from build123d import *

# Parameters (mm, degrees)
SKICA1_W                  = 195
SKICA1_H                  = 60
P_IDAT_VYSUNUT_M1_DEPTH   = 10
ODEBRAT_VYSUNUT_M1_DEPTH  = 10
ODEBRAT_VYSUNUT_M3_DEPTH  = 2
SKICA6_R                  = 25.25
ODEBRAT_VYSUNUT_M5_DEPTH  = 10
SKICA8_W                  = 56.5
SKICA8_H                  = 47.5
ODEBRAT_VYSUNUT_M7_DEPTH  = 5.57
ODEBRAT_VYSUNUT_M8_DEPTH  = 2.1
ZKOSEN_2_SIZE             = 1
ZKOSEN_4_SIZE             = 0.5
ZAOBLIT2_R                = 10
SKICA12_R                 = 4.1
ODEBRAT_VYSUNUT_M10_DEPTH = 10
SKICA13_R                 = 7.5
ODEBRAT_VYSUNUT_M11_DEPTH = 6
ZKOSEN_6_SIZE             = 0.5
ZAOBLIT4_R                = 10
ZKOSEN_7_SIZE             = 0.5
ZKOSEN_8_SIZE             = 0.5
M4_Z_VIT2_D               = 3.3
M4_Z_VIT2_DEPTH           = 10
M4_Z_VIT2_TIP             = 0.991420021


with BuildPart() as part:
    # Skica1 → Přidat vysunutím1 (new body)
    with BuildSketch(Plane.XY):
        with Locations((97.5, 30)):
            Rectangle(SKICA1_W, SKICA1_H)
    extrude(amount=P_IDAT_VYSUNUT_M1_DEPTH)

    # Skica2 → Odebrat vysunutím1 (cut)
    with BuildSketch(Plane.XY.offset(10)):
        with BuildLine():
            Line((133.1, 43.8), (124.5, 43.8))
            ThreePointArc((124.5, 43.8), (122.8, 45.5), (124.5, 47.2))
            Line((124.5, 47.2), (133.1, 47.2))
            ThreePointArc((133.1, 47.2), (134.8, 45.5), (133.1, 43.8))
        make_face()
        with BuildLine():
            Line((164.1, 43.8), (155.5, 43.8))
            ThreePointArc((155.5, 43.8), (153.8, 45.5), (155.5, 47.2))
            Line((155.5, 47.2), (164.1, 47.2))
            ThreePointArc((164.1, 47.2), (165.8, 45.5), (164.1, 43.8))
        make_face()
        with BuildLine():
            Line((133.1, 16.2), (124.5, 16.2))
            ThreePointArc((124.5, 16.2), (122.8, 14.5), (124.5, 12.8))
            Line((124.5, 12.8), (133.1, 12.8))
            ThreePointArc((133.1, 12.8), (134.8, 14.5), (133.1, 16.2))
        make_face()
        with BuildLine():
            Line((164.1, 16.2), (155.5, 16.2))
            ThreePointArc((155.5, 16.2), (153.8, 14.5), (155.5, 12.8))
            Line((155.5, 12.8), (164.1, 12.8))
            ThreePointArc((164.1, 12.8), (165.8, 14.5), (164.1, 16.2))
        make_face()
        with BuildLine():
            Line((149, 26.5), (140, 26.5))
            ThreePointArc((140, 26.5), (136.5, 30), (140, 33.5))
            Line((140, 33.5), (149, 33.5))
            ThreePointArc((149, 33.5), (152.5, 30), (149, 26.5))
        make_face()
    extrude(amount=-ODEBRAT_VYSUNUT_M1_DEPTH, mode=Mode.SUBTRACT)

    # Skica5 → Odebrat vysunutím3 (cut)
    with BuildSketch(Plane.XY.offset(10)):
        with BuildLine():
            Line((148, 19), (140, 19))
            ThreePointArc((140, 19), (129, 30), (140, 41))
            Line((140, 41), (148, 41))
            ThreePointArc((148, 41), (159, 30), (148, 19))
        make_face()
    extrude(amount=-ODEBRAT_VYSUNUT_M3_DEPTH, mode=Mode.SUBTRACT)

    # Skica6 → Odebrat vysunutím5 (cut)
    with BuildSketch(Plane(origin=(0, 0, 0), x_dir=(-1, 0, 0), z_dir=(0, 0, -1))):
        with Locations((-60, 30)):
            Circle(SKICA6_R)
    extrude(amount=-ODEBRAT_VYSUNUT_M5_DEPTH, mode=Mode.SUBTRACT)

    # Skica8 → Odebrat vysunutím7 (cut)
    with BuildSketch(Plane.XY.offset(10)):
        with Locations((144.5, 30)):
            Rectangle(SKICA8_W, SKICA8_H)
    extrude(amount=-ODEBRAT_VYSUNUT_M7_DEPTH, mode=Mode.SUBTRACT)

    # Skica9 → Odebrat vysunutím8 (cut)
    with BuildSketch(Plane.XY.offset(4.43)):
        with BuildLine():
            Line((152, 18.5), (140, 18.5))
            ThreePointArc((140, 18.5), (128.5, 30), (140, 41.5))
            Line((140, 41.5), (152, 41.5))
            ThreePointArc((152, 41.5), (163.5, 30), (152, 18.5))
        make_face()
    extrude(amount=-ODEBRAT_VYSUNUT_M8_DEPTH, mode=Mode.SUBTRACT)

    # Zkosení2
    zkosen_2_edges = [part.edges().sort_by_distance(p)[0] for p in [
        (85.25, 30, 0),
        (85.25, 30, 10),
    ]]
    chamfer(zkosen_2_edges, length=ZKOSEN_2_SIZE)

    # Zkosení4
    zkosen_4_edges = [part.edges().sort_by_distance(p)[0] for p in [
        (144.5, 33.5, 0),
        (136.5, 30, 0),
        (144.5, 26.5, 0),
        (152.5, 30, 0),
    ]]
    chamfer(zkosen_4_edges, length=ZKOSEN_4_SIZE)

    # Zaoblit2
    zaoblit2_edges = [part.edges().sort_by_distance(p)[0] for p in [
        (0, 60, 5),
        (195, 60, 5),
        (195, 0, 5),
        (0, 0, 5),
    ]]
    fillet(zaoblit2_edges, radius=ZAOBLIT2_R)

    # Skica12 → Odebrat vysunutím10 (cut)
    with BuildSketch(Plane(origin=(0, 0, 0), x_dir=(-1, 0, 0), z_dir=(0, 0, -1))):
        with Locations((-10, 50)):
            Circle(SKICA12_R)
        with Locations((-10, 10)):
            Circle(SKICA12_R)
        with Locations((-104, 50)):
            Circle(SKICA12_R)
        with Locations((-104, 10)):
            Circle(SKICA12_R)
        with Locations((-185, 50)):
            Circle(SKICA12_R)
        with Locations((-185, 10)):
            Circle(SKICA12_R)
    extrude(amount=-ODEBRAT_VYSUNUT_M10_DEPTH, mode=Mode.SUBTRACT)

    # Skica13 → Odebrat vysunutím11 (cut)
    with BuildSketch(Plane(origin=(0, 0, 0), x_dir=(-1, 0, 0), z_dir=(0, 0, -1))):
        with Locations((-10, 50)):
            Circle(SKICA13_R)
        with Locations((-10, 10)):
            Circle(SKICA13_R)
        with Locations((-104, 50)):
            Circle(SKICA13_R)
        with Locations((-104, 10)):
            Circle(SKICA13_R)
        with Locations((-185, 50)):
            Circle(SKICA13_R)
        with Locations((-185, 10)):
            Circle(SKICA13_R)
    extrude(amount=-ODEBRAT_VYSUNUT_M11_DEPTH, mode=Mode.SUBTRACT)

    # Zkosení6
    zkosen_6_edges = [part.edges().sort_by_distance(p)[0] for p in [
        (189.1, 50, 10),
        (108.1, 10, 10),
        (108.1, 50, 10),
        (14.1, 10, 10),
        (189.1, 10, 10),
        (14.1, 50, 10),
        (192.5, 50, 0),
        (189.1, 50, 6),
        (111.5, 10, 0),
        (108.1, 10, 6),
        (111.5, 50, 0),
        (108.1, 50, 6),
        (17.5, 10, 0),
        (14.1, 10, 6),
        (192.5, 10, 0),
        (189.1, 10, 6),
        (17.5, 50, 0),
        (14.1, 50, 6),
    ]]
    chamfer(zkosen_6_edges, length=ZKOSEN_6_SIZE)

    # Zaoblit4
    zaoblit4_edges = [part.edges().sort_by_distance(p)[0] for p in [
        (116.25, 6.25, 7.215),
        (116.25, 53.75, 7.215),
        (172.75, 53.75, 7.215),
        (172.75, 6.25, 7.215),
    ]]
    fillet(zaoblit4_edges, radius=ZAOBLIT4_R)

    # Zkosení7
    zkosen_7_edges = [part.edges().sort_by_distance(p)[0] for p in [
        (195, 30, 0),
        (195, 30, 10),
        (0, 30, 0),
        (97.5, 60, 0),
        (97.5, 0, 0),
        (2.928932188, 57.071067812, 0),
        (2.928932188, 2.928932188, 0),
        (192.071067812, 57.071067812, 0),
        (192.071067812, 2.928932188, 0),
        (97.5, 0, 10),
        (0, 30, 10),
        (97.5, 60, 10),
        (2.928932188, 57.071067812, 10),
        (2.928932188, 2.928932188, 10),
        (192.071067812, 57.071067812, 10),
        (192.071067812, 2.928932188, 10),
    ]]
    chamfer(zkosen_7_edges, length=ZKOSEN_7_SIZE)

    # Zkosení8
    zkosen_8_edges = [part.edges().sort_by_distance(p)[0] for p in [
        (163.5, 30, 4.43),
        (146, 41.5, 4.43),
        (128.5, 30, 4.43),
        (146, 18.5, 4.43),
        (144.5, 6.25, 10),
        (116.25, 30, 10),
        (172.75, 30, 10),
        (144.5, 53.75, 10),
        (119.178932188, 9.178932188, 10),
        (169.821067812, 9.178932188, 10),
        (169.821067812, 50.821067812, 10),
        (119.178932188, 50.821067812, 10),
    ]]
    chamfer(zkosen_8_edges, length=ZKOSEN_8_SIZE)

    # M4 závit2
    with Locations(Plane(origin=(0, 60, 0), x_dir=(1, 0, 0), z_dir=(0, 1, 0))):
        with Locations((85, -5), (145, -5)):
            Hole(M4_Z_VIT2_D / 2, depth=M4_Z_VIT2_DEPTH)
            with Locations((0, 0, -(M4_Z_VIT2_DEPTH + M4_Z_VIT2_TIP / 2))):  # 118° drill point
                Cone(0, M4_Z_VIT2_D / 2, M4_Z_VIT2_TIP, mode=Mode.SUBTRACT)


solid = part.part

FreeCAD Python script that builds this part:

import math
import FreeCAD as App
import Part
import Sketcher

V = App.Vector


def edges_at(feature, points):
    """Names of the edges that pass closest to the given points."""
    edges = feature.Shape.Edges
    near = lambda p: min(range(len(edges)), key=lambda i: edges[i].distToShape(Part.Vertex(*p))[0])
    return sorted({f"Edge{near(p) + 1}" for p in points})


def add_polygon(sketch, points):
    """Adds a closed chain of lines whose ends are joined by coincident constraints."""
    first, n = sketch.GeometryCount, len(points)
    for a, b in zip(points, points[1:] + points[:1]):
        sketch.addGeometry(Part.LineSegment(App.Vector(*a, 0), App.Vector(*b, 0)), False)
    for i in range(n):
        sketch.addConstraint(Sketcher.Constraint("Coincident", first + i, 2, first + (i + 1) % n, 1))

doc = App.newDocument("Part")
body = doc.addObject("PartDesign::Body", "Body")

sketch1 = body.newObject("Sketcher::SketchObject", "Sketch")
sketch1.AttachmentSupport = (doc.getObject("XY_Plane"), [""])
sketch1.MapMode = "FlatFace"
add_polygon(sketch1, [(0, 60), (0, 0), (195, 0), (195, 60)])
sketch1.addConstraint([
    Sketcher.Constraint("Vertical", 0),
    Sketcher.Constraint("Horizontal", 1),
    Sketcher.Constraint("Vertical", 2),
    Sketcher.Constraint("Horizontal", 3),
    Sketcher.Constraint("Coincident", 0, 2, -1, 1),
    Sketcher.Constraint("DistanceX", 1, 1, 1, 2, 195.0),
    Sketcher.Constraint("DistanceY", 0, 2, 0, 1, 60.0),
])
pad1 = body.newObject("PartDesign::Pad", "Pad")
pad1.Profile = sketch1
pad1.Length = 10

sketch2 = body.newObject("Sketcher::SketchObject", "Sketch001")
sketch2.AttachmentSupport = (doc.getObject("XY_Plane"), [""])
sketch2.MapMode = "FlatFace"
sketch2.AttachmentOffset = App.Placement(V(0, 0, 10), App.Rotation())
sketch2.addGeometry([
    Part.LineSegment(V(124.5, 43.8, 0), V(133.1, 43.8, 0)),
    Part.ArcOfCircle(Part.Circle(V(133.1, 45.5, 0), V(0, 0, 1), 1.7), math.radians(-90), math.radians(90)),
    Part.LineSegment(V(133.1, 47.2, 0), V(124.5, 47.2, 0)),
    Part.ArcOfCircle(Part.Circle(V(124.5, 45.5, 0), V(0, 0, 1), 1.7), math.radians(90), math.radians(270)),
    Part.LineSegment(V(155.5, 43.8, 0), V(164.1, 43.8, 0)),
    Part.ArcOfCircle(Part.Circle(V(164.1, 45.5, 0), V(0, 0, 1), 1.7), math.radians(-90), math.radians(90)),
    Part.LineSegment(V(164.1, 47.2, 0), V(155.5, 47.2, 0)),
    Part.ArcOfCircle(Part.Circle(V(155.5, 45.5, 0), V(0, 0, 1), 1.7), math.radians(90), math.radians(270)),
    Part.LineSegment(V(133.1, 16.2, 0), V(124.5, 16.2, 0)),
    Part.ArcOfCircle(Part.Circle(V(124.5, 14.5, 0), V(0, 0, 1), 1.7), math.radians(90), math.radians(270)),
    Part.LineSegment(V(124.5, 12.8, 0), V(133.1, 12.8, 0)),
    Part.ArcOfCircle(Part.Circle(V(133.1, 14.5, 0), V(0, 0, 1), 1.7), math.radians(-90), math.radians(90)),
    Part.LineSegment(V(164.1, 16.2, 0), V(155.5, 16.2, 0)),
    Part.ArcOfCircle(Part.Circle(V(155.5, 14.5, 0), V(0, 0, 1), 1.7), math.radians(90), math.radians(270)),
    Part.LineSegment(V(155.5, 12.8, 0), V(164.1, 12.8, 0)),
    Part.ArcOfCircle(Part.Circle(V(164.1, 14.5, 0), V(0, 0, 1), 1.7), math.radians(-90), math.radians(90)),
    Part.LineSegment(V(140, 26.5, 0), V(149, 26.5, 0)),
    Part.ArcOfCircle(Part.Circle(V(149, 30, 0), V(0, 0, 1), 3.5), math.radians(-90), math.radians(90)),
    Part.LineSegment(V(149, 33.5, 0), V(140, 33.5, 0)),
    Part.ArcOfCircle(Part.Circle(V(140, 30, 0), V(0, 0, 1), 3.5), math.radians(90), math.radians(270)),
], False)
sketch2.addConstraint([
    Sketcher.Constraint("Tangent", 0, 2, 1, 1),
    Sketcher.Constraint("Tangent", 1, 2, 2, 1),
    Sketcher.Constraint("Tangent", 2, 2, 3, 1),
    Sketcher.Constraint("Tangent", 3, 2, 0, 1),
    Sketcher.Constraint("Tangent", 4, 2, 5, 1),
    Sketcher.Constraint("Tangent", 5, 2, 6, 1),
    Sketcher.Constraint("Tangent", 6, 2, 7, 1),
    Sketcher.Constraint("Tangent", 7, 2, 4, 1),
    Sketcher.Constraint("Tangent", 8, 2, 9, 1),
    Sketcher.Constraint("Tangent", 9, 2, 10, 1),
    Sketcher.Constraint("Tangent", 10, 2, 11, 1),
    Sketcher.Constraint("Tangent", 11, 2, 8, 1),
    Sketcher.Constraint("Tangent", 12, 2, 13, 1),
    Sketcher.Constraint("Tangent", 13, 2, 14, 1),
    Sketcher.Constraint("Tangent", 14, 2, 15, 1),
    Sketcher.Constraint("Tangent", 15, 2, 12, 1),
    Sketcher.Constraint("Tangent", 16, 2, 17, 1),
    Sketcher.Constraint("Tangent", 17, 2, 18, 1),
    Sketcher.Constraint("Tangent", 18, 2, 19, 1),
    Sketcher.Constraint("Tangent", 19, 2, 16, 1),
    Sketcher.Constraint("Horizontal", 0),
    Sketcher.Constraint("Horizontal", 2),
    Sketcher.Constraint("Horizontal", 4),
    Sketcher.Constraint("Horizontal", 6),
    Sketcher.Constraint("Horizontal", 8),
    Sketcher.Constraint("Horizontal", 10),
    Sketcher.Constraint("Horizontal", 12),
    Sketcher.Constraint("Horizontal", 14),
    Sketcher.Constraint("Horizontal", 16),
    Sketcher.Constraint("Horizontal", 18),
    Sketcher.Constraint("Equal", 3, 5),
    Sketcher.Constraint("Equal", 7, 9),
    Sketcher.Constraint("Equal", 11, 13),
    Sketcher.Constraint("Horizontal", 3, 3, 5, 3),
    Sketcher.Constraint("Horizontal", 11, 3, 13, 3),
    Sketcher.Constraint("Vertical", 3, 3, 9, 3),
    Sketcher.Constraint("Vertical", 1, 3, 11, 3),
    Sketcher.Constraint("Vertical", 7, 3, 13, 3),
    Sketcher.Constraint("Vertical", 5, 3, 15, 3),
    Sketcher.Constraint("Equal", 2, 4),
    Sketcher.Constraint("Radius", 1, 1.7),
    Sketcher.Constraint("Radius", 17, 3.5),
    Sketcher.Constraint("DistanceX", 16, 1, 16, 2, 9.0),
    Sketcher.Constraint("DistanceX", 0, 1, 0, 2, 8.6),
    Sketcher.Constraint("DistanceX", -1, 1, 17, 3, 149.0),
    Sketcher.Constraint("DistanceY", -1, 1, 17, 3, 30.0),
    Sketcher.Constraint("DistanceX", 1, 3, 5, 3, 31.0),
    Sketcher.Constraint("DistanceY", 9, 3, 3, 3, 31.0),
    Sketcher.Constraint("DistanceY", 13, 3, 16, 2, 12.0),
    Sketcher.Constraint("DistanceX", -1, 1, 1, 3, 133.1),
])
pocket1 = body.newObject("PartDesign::Pocket", "Pocket")
pocket1.Profile = sketch2
pocket1.Length = 10

sketch3 = body.newObject("Sketcher::SketchObject", "Sketch002")
sketch3.AttachmentSupport = (doc.getObject("XY_Plane"), [""])
sketch3.MapMode = "FlatFace"
sketch3.AttachmentOffset = App.Placement(V(0, 0, 10), App.Rotation())
sketch3.addGeometry([
    Part.LineSegment(V(140, 19, 0), V(148, 19, 0)),
    Part.ArcOfCircle(Part.Circle(V(148, 30, 0), V(0, 0, 1), 11), math.radians(-90), math.radians(90)),
    Part.LineSegment(V(148, 41, 0), V(140, 41, 0)),
    Part.ArcOfCircle(Part.Circle(V(140, 30, 0), V(0, 0, 1), 11), math.radians(90), math.radians(270)),
], False)
sketch3.addConstraint([
    Sketcher.Constraint("Tangent", 0, 2, 1, 1),
    Sketcher.Constraint("Tangent", 1, 2, 2, 1),
    Sketcher.Constraint("Tangent", 2, 2, 3, 1),
    Sketcher.Constraint("Tangent", 3, 2, 0, 1),
    Sketcher.Constraint("Horizontal", 0),
    Sketcher.Constraint("Horizontal", 2),
    Sketcher.Constraint("Radius", 1, 11.0),
    Sketcher.Constraint("DistanceX", 0, 1, 0, 2, 8.0),
    Sketcher.Constraint("DistanceX", -1, 1, 1, 3, 148.0),
    Sketcher.Constraint("DistanceY", -1, 1, 1, 3, 30.0),
])
pocket2 = body.newObject("PartDesign::Pocket", "Pocket001")
pocket2.Profile = sketch3
pocket2.Length = 2

sketch4 = body.newObject("Sketcher::SketchObject", "Sketch003")
sketch4.AttachmentSupport = (doc.getObject("XY_Plane"), [""])
sketch4.MapMode = "FlatFace"
sketch4.addGeometry(Part.Circle(V(60, 30, 0), V(0, 0, 1), 25), False)
sketch4.addConstraint([
    Sketcher.Constraint("Diameter", 0, 50.5),
    Sketcher.Constraint("DistanceX", -1, 1, 0, 3, 60.0),
    Sketcher.Constraint("DistanceY", -1, 1, 0, 3, 30.0),
])
pocket3 = body.newObject("PartDesign::Pocket", "Pocket002")
pocket3.Profile = sketch4
pocket3.Length = 10
pocket3.Reversed = True

sketch5 = body.newObject("Sketcher::SketchObject", "Sketch004")
sketch5.AttachmentSupport = (doc.getObject("XY_Plane"), [""])
sketch5.MapMode = "FlatFace"
sketch5.AttachmentOffset = App.Placement(V(0, 0, 10), App.Rotation())
add_polygon(sketch5, [(116, 54), (116, 6), (173, 6), (173, 54)])
sketch5.addConstraint([
    Sketcher.Constraint("Vertical", 0),
    Sketcher.Constraint("Horizontal", 1),
    Sketcher.Constraint("Vertical", 2),
    Sketcher.Constraint("Horizontal", 3),
    Sketcher.Constraint("DistanceX", 1, 1, 1, 2, 56.5),
    Sketcher.Constraint("DistanceY", 0, 2, 0, 1, 47.5),
    Sketcher.Constraint("DistanceX", -1, 1, 0, 2, 116.25),
    Sketcher.Constraint("DistanceY", -1, 1, 0, 2, 6.25),
])
pocket4 = body.newObject("PartDesign::Pocket", "Pocket003")
pocket4.Profile = sketch5
pocket4.Length = 5.57

sketch6 = body.newObject("Sketcher::SketchObject", "Sketch005")
sketch6.AttachmentSupport = (doc.getObject("XY_Plane"), [""])
sketch6.MapMode = "FlatFace"
sketch6.AttachmentOffset = App.Placement(V(0, 0, 4.43), App.Rotation())
sketch6.addGeometry([
    Part.LineSegment(V(140, 18, 0), V(152, 18, 0)),
    Part.ArcOfCircle(Part.Circle(V(152, 30, 0), V(0, 0, 1), 12), math.radians(-90), math.radians(90)),
    Part.LineSegment(V(152, 42, 0), V(140, 42, 0)),
    Part.ArcOfCircle(Part.Circle(V(140, 30, 0), V(0, 0, 1), 12), math.radians(90), math.radians(270)),
], False)
sketch6.addConstraint([
    Sketcher.Constraint("Tangent", 0, 2, 1, 1),
    Sketcher.Constraint("Tangent", 1, 2, 2, 1),
    Sketcher.Constraint("Tangent", 2, 2, 3, 1),
    Sketcher.Constraint("Tangent", 3, 2, 0, 1),
    Sketcher.Constraint("Horizontal", 0),
    Sketcher.Constraint("Horizontal", 2),
    Sketcher.Constraint("Radius", 1, 11.5),
    Sketcher.Constraint("DistanceX", 0, 1, 0, 2, 12.0),
    Sketcher.Constraint("DistanceX", -1, 1, 1, 3, 152.0),
    Sketcher.Constraint("DistanceY", -1, 1, 1, 3, 30.0),
])
pocket5 = body.newObject("PartDesign::Pocket", "Pocket004")
pocket5.Profile = sketch6
pocket5.Length = 2.1
doc.recompute()

chamfer = body.newObject("PartDesign::Chamfer", "Chamfer")
chamfer.Base = (pocket5, edges_at(pocket5, [(85.25, 30, 0), (85.25, 30, 10)]))
chamfer.Size = 1
doc.recompute()

chamfer2 = body.newObject("PartDesign::Chamfer", "Chamfer001")
chamfer2.Base = (chamfer, edges_at(chamfer, [
    (144.5, 33.5, 0),
    (136.5, 30, 0),
    (144.5, 26.5, 0),
    (152.5, 30, 0),
]))
chamfer2.Size = 0.5
doc.recompute()

fillet = body.newObject("PartDesign::Fillet", "Fillet")
fillet.Base = (chamfer2, edges_at(chamfer2, [
    (0, 60, 5),
    (195, 60, 5),
    (195, 0, 5),
    (0, 0, 5),
]))
fillet.Radius = 10

sketch7 = body.newObject("Sketcher::SketchObject", "Sketch006")
sketch7.AttachmentSupport = (doc.getObject("XY_Plane"), [""])
sketch7.MapMode = "FlatFace"
sketch7.addGeometry([
    Part.Circle(V(10, 50, 0), V(0, 0, 1), 4.1),
    Part.Circle(V(10, 10, 0), V(0, 0, 1), 4.1),
    Part.Circle(V(104, 50, 0), V(0, 0, 1), 4.1),
    Part.Circle(V(104, 10, 0), V(0, 0, 1), 4.1),
    Part.Circle(V(185, 50, 0), V(0, 0, 1), 4.1),
    Part.Circle(V(185, 10, 0), V(0, 0, 1), 4.1),
], False)
sketch7.addConstraint([
    Sketcher.Constraint("Equal", 0, 1),
    Sketcher.Constraint("Equal", 1, 2),
    Sketcher.Constraint("Equal", 2, 3),
    Sketcher.Constraint("Equal", 3, 4),
    Sketcher.Constraint("Equal", 4, 5),
    Sketcher.Constraint("Horizontal", 0, 3, 2, 3),
    Sketcher.Constraint("Horizontal", 1, 3, 3, 3),
    Sketcher.Constraint("Horizontal", 2, 3, 4, 3),
    Sketcher.Constraint("Horizontal", 3, 3, 5, 3),
    Sketcher.Constraint("Vertical", 0, 3, 1, 3),
    Sketcher.Constraint("Vertical", 2, 3, 3, 3),
    Sketcher.Constraint("Vertical", 4, 3, 5, 3),
    Sketcher.Constraint("Diameter", 0, 8.2),
    Sketcher.Constraint("DistanceX", -1, 1, 0, 3, 10.0),
    Sketcher.Constraint("DistanceY", -1, 1, 0, 3, 50.0),
    Sketcher.Constraint("DistanceY", -1, 1, 1, 3, 10.0),
    Sketcher.Constraint("DistanceX", -1, 1, 2, 3, 104.0),
    Sketcher.Constraint("DistanceX", -1, 1, 4, 3, 185.0),
])
pocket6 = body.newObject("PartDesign::Pocket", "Pocket005")
pocket6.Profile = sketch7
pocket6.Length = 10
pocket6.Reversed = True

sketch8 = body.newObject("Sketcher::SketchObject", "Sketch007")
sketch8.AttachmentSupport = (doc.getObject("XY_Plane"), [""])
sketch8.MapMode = "FlatFace"
sketch8.addGeometry([
    Part.Circle(V(10, 50, 0), V(0, 0, 1), 8),
    Part.Circle(V(10, 10, 0), V(0, 0, 1), 8),
    Part.Circle(V(104, 50, 0), V(0, 0, 1), 8),
    Part.Circle(V(104, 10, 0), V(0, 0, 1), 8),
    Part.Circle(V(185, 50, 0), V(0, 0, 1), 8),
    Part.Circle(V(185, 10, 0), V(0, 0, 1), 8),
], False)
sketch8.addConstraint([
    Sketcher.Constraint("Equal", 0, 1),
    Sketcher.Constraint("Equal", 1, 2),
    Sketcher.Constraint("Equal", 2, 3),
    Sketcher.Constraint("Equal", 3, 4),
    Sketcher.Constraint("Equal", 4, 5),
    Sketcher.Constraint("Horizontal", 0, 3, 2, 3),
    Sketcher.Constraint("Horizontal", 1, 3, 3, 3),
    Sketcher.Constraint("Horizontal", 2, 3, 4, 3),
    Sketcher.Constraint("Horizontal", 3, 3, 5, 3),
    Sketcher.Constraint("Vertical", 0, 3, 1, 3),
    Sketcher.Constraint("Vertical", 2, 3, 3, 3),
    Sketcher.Constraint("Vertical", 4, 3, 5, 3),
    Sketcher.Constraint("Diameter", 0, 15.0),
    Sketcher.Constraint("DistanceX", -1, 1, 0, 3, 10.0),
    Sketcher.Constraint("DistanceY", -1, 1, 0, 3, 50.0),
    Sketcher.Constraint("DistanceY", -1, 1, 1, 3, 10.0),
    Sketcher.Constraint("DistanceX", -1, 1, 2, 3, 104.0),
    Sketcher.Constraint("DistanceX", -1, 1, 4, 3, 185.0),
])
pocket7 = body.newObject("PartDesign::Pocket", "Pocket006")
pocket7.Profile = sketch8
pocket7.Length = 6
pocket7.Reversed = True
doc.recompute()

chamfer3 = body.newObject("PartDesign::Chamfer", "Chamfer002")
chamfer3.Base = (pocket7, edges_at(pocket7, [
    (189.1, 50, 10),
    (108.1, 10, 10),
    (108.1, 50, 10),
    (14.1, 10, 10),
    (189.1, 10, 10),
    (14.1, 50, 10),
    (192.5, 50, 0),
    (189.1, 50, 6),
    (111.5, 10, 0),
    (108.1, 10, 6),
    (111.5, 50, 0),
    (108.1, 50, 6),
    (17.5, 10, 0),
    (14.1, 10, 6),
    (192.5, 10, 0),
    (189.1, 10, 6),
    (17.5, 50, 0),
    (14.1, 50, 6),
]))
chamfer3.Size = 0.5
doc.recompute()

fillet2 = body.newObject("PartDesign::Fillet", "Fillet001")
fillet2.Base = (chamfer3, edges_at(chamfer3, [
    (116.25, 6.25, 7.215),
    (116.25, 53.75, 7.215),
    (172.75, 53.75, 7.215),
    (172.75, 6.25, 7.215),
]))
fillet2.Radius = 10
doc.recompute()

chamfer4 = body.newObject("PartDesign::Chamfer", "Chamfer003")
chamfer4.Base = (fillet2, edges_at(fillet2, [
    (195, 30, 0),
    (195, 30, 10),
    (0, 30, 0),
    (97.5, 60, 0),
    (97.5, 0, 0),
    (2.929, 57.071, 0),
    (2.929, 2.929, 0),
    (192.071, 57.071, 0),
    (192.071, 2.929, 0),
    (97.5, 0, 10),
    (0, 30, 10),
    (97.5, 60, 10),
    (2.929, 57.071, 10),
    (2.929, 2.929, 10),
    (192.071, 57.071, 10),
    (192.071, 2.929, 10),
]))
chamfer4.Size = 0.5
doc.recompute()

chamfer5 = body.newObject("PartDesign::Chamfer", "Chamfer004")
chamfer5.Base = (chamfer4, edges_at(chamfer4, [
    (163.5, 30, 4.43),
    (146, 41.5, 4.43),
    (128.5, 30, 4.43),
    (146, 18.5, 4.43),
    (144.5, 6.25, 10),
    (116.25, 30, 10),
    (172.75, 30, 10),
    (144.5, 53.75, 10),
    (119.179, 9.179, 10),
    (169.821, 9.179, 10),
    (169.821, 50.821, 10),
    (119.179, 50.821, 10),
]))
chamfer5.Size = 0.5

sketch9 = body.newObject("Sketcher::SketchObject", "Sketch008")
sketch9.AttachmentSupport = (doc.getObject("XZ_Plane"), [""])
sketch9.MapMode = "FlatFace"
sketch9.AttachmentOffset = App.Placement(V(0, 0, -60), App.Rotation())
sketch9.addGeometry([
    Part.Circle(V(85, 5, 0), V(0, 0, 1), 1.6),
    Part.Circle(V(145, 5, 0), V(0, 0, 1), 1.6),
], False)
sketch9.addConstraint([
    Sketcher.Constraint("Equal", 0, 1),
    Sketcher.Constraint("Horizontal", 0, 3, 1, 3),
    Sketcher.Constraint("Diameter", 0, 3.3),
    Sketcher.Constraint("DistanceX", -1, 1, 0, 3, 85.0),
    Sketcher.Constraint("DistanceY", -1, 1, 0, 3, 5.0),
    Sketcher.Constraint("DistanceX", -1, 1, 1, 3, 145.0),
])
doc.recompute()
hole = body.newObject("PartDesign::Hole", "Hole")
hole.Profile = sketch9
hole.ThreadType = "None"
hole.Diameter = 3.3
hole.DepthType = "Dimension"
hole.Depth = 10
hole.DrillPoint = "Angled"
hole.DrillPointAngle = 118
hole.Reversed = True

doc.recompute()
